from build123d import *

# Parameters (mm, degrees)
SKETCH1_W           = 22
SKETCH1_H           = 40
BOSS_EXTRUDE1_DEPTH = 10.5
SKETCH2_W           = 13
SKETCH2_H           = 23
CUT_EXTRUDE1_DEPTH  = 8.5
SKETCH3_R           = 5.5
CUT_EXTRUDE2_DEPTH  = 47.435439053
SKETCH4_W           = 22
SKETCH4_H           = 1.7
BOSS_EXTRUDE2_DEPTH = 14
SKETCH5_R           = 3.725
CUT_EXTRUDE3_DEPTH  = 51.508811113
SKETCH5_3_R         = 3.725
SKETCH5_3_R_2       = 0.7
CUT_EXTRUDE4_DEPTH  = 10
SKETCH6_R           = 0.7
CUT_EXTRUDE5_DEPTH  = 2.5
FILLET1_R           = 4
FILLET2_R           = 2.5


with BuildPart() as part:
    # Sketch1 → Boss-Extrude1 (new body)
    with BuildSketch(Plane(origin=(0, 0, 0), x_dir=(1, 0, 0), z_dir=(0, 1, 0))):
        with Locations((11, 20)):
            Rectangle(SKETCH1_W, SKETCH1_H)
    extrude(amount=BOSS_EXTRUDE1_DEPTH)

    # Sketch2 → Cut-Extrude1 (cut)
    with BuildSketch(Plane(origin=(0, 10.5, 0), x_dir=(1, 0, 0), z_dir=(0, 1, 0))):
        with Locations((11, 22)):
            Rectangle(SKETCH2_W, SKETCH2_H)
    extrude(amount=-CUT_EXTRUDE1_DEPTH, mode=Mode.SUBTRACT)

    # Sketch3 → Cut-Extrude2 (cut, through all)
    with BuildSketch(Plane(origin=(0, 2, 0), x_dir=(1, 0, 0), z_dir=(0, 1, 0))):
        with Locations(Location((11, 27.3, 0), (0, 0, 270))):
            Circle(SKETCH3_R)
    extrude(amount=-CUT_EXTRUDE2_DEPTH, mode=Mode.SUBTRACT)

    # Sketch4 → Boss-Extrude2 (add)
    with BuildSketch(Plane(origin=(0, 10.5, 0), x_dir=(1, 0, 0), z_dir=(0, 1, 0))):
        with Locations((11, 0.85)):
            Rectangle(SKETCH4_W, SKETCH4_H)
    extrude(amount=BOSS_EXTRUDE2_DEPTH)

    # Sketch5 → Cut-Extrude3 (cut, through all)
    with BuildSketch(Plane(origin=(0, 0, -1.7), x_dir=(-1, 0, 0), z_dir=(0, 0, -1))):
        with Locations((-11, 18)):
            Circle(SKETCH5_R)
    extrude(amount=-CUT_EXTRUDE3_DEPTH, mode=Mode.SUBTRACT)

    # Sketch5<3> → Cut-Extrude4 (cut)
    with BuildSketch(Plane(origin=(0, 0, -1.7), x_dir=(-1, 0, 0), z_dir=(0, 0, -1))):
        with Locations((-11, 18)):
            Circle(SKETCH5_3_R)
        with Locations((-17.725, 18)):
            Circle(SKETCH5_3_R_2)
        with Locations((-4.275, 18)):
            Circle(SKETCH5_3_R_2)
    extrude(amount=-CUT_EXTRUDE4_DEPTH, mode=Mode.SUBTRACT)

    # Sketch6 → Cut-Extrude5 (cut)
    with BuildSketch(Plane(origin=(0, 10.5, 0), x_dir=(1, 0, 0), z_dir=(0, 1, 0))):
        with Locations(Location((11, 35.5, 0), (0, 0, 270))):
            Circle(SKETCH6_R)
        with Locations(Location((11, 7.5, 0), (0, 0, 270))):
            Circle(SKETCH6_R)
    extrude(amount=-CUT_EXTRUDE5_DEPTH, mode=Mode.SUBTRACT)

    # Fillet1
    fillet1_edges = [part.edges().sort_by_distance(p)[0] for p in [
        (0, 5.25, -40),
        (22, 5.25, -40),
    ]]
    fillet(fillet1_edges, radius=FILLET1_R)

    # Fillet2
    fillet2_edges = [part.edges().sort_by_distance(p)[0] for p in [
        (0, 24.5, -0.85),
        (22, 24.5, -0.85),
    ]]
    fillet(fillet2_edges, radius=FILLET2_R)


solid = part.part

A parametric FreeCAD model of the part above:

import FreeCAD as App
import Part
import Sketcher
from FreeCAD import Vector
Q = App.Units.Quantity


def edges_at(feature, points):
    """Names of the edges that pass closest to the given points."""
    edges = feature.Shape.Edges
    near = lambda p: min(range(len(edges)), key=lambda i: edges[i].distToShape(Part.Vertex(*p))[0])
    return sorted({f"Edge{near(p) + 1}" for p in points})

doc = App.newDocument("Part")
body = doc.addObject("PartDesign::Body", "Body")

# Sketch on XZ plane
sketch1 = doc.addObject("Sketcher::SketchObject", "Sketch")
body.addObject(sketch1)
sketch1.AttachmentSupport = (doc.XZ_Plane, [""])
sketch1.MapMode = "FlatFace"
sketch1.addGeometry(Part.LineSegment(Vector(0, -40, 0), Vector(0, 0, 0)), False)
sketch1.addGeometry(Part.LineSegment(Vector(0, 0, 0), Vector(22, 0, 0)), False)
sketch1.addGeometry(Part.LineSegment(Vector(22, 0, 0), Vector(22, -40, 0)), False)
sketch1.addGeometry(Part.LineSegment(Vector(22, -40, 0), Vector(0, -40, 0)), False)
sketch1.addConstraint(Sketcher.Constraint("Coincident", 0, 2, 1, 1))
sketch1.addConstraint(Sketcher.Constraint("Coincident", 1, 2, 2, 1))
sketch1.addConstraint(Sketcher.Constraint("Coincident", 2, 2, 3, 1))
sketch1.addConstraint(Sketcher.Constraint("Coincident", 3, 2, 0, 1))
sketch1.addConstraint(Sketcher.Constraint("Vertical", 0))
sketch1.addConstraint(Sketcher.Constraint("Horizontal", 1))
sketch1.addConstraint(Sketcher.Constraint("Vertical", 2))
sketch1.addConstraint(Sketcher.Constraint("Horizontal", 3))
sketch1.addConstraint(Sketcher.Constraint("Coincident", 0, 2, -1, 1))
sketch1.addConstraint(Sketcher.Constraint("DistanceX", 1, 1, 1, 2, Q("22 mm")))
sketch1.addConstraint(Sketcher.Constraint("DistanceY", 0, 1, 0, 2, Q("40 mm")))
pad1 = doc.addObject("PartDesign::Pad", "Pad")
body.addObject(pad1)
pad1.Profile = sketch1
pad1.Length = 10.5
pad1.Reversed = True

# Sketch on XZ plane
sketch2 = doc.addObject("Sketcher::SketchObject", "Sketch001")
body.addObject(sketch2)
sketch2.AttachmentSupport = (doc.XZ_Plane, [""])
sketch2.MapMode = "FlatFace"
sketch2.AttachmentOffset = App.Placement(Vector(0, 0, -10.5), App.Rotation())
sketch2.addGeometry(Part.LineSegment(Vector(4, -34, 0), Vector(4, -10, 0)), False)
sketch2.addGeometry(Part.LineSegment(Vector(4, -10, 0), Vector(18, -10, 0)), False)
sketch2.addGeometry(Part.LineSegment(Vector(18, -10, 0), Vector(18, -34, 0)), False)
sketch2.addGeometry(Part.LineSegment(Vector(18, -34, 0), Vector(4, -34, 0)), False)
sketch2.addConstraint(Sketcher.Constraint("Coincident", 0, 2, 1, 1))
sketch2.addConstraint(Sketcher.Constraint("Coincident", 1, 2, 2, 1))
sketch2.addConstraint(Sketcher.Constraint("Coincident", 2, 2, 3, 1))
sketch2.addConstraint(Sketcher.Constraint("Coincident", 3, 2, 0, 1))
sketch2.addConstraint(Sketcher.Constraint("Vertical", 0))
sketch2.addConstraint(Sketcher.Constraint("Horizontal", 1))
sketch2.addConstraint(Sketcher.Constraint("Vertical", 2))
sketch2.addConstraint(Sketcher.Constraint("Horizontal", 3))
sketch2.addConstraint(Sketcher.Constraint("DistanceX", 1, 1, 1, 2, Q("13 mm")))
sketch2.addConstraint(Sketcher.Constraint("DistanceY", 0, 1, 0, 2, Q("23 mm")))
sketch2.addConstraint(Sketcher.Constraint("DistanceX", -1, 1, 0, 2, Q("4.5 mm")))
sketch2.addConstraint(Sketcher.Constraint("DistanceY", 0, 2, -1, 1, Q("10.5 mm")))
pocket1 = doc.addObject("PartDesign::Pocket", "Pocket")
body.addObject(pocket1)
pocket1.Profile = sketch2
pocket1.Length = 8.5
pocket1.Reversed = True

# Sketch on XZ plane
sketch3 = doc.addObject("Sketcher::SketchObject", "Sketch002")
body.addObject(sketch3)
sketch3.AttachmentSupport = (doc.XZ_Plane, [""])
sketch3.MapMode = "FlatFace"
sketch3.AttachmentOffset = App.Placement(Vector(0, 0, -2), App.Rotation())
sketch3.addGeometry(Part.Circle(Vector(11, -27, 0), Vector(0, 0, 1), 6), False)
sketch3.addConstraint(Sketcher.Constraint("Diameter", 0, Q("11 mm")))
sketch3.addConstraint(Sketcher.Constraint("DistanceX", -1, 1, 0, 3, Q("11 mm")))
sketch3.addConstraint(Sketcher.Constraint("DistanceY", 0, 3, -1, 1, Q("27.3 mm")))
pocket2 = doc.addObject("PartDesign::Pocket", "Pocket001")
body.addObject(pocket2)
pocket2.Profile = sketch3
pocket2.Type = "ThroughAll"
pocket2.Reversed = True

# Sketch on XZ plane
sketch4 = doc.addObject("Sketcher::SketchObject", "Sketch003")
body.addObject(sketch4)
sketch4.AttachmentSupport = (doc.XZ_Plane, [""])
sketch4.MapMode = "FlatFace"
sketch4.AttachmentOffset = App.Placement(Vector(0, 0, -10.5), App.Rotation())
sketch4.addGeometry(Part.LineSegment(Vector(0, -1.7, 0), Vector(0, 0, 0)), False)
sketch4.addGeometry(Part.LineSegment(Vector(0, 0, 0), Vector(22, 0, 0)), False)
sketch4.addGeometry(Part.LineSegment(Vector(22, 0, 0), Vector(22, -1.7, 0)), False)
sketch4.addGeometry(Part.LineSegment(Vector(22, -1.7, 0), Vector(0, -1.7, 0)), False)
sketch4.addConstraint(Sketcher.Constraint("Coincident", 0, 2, 1, 1))
sketch4.addConstraint(Sketcher.Constraint("Coincident", 1, 2, 2, 1))
sketch4.addConstraint(Sketcher.Constraint("Coincident", 2, 2, 3, 1))
sketch4.addConstraint(Sketcher.Constraint("Coincident", 3, 2, 0, 1))
sketch4.addConstraint(Sketcher.Constraint("Vertical", 0))
sketch4.addConstraint(Sketcher.Constraint("Horizontal", 1))
sketch4.addConstraint(Sketcher.Constraint("Vertical", 2))
sketch4.addConstraint(Sketcher.Constraint("Horizontal", 3))
sketch4.addConstraint(Sketcher.Constraint("Coincident", 0, 2, -1, 1))
sketch4.addConstraint(Sketcher.Constraint("DistanceX", 1, 1, 1, 2, Q("22 mm")))
sketch4.addConstraint(Sketcher.Constraint("DistanceY", 0, 1, 0, 2, Q("1.7 mm")))
pad2 = doc.addObject("PartDesign::Pad", "Pad001")
body.addObject(pad2)
pad2.Profile = sketch4
pad2.Length = 14
pad2.Reversed = True

# Sketch on XY plane
sketch5 = doc.addObject("Sketcher::SketchObject", "Sketch004")
body.addObject(sketch5)
sketch5.AttachmentSupport = (doc.XY_Plane, [""])
sketch5.MapMode = "FlatFace"
sketch5.AttachmentOffset = App.Placement(Vector(0, 0, -1.7), App.Rotation())
sketch5.addGeometry(Part.Circle(Vector(11, 18, 0), Vector(0, 0, 1), 3.7), False)
sketch5.addConstraint(Sketcher.Constraint("Diameter", 0, Q("7.45 mm")))
sketch5.addConstraint(Sketcher.Constraint("DistanceX", -1, 1, 0, 3, Q("11 mm")))
sketch5.addConstraint(Sketcher.Constraint("DistanceY", -1, 1, 0, 3, Q("18 mm")))
pocket3 = doc.addObject("PartDesign::Pocket", "Pocket002")
body.addObject(pocket3)
pocket3.Profile = sketch5
pocket3.Type = "ThroughAll"
pocket3.Reversed = True

# Sketch on XY plane
sketch6 = doc.addObject("Sketcher::SketchObject", "Sketch005")
body.addObject(sketch6)
sketch6.AttachmentSupport = (doc.XY_Plane, [""])
sketch6.MapMode = "FlatFace"
sketch6.AttachmentOffset = App.Placement(Vector(0, 0, -1.7), App.Rotation())
sketch6.addGeometry(Part.Circle(Vector(11, 18, 0), Vector(0, 0, 1), 3.7), False)
sketch6.addGeometry(Part.Circle(Vector(17.7, 18, 0), Vector(0, 0, 1), 0.7), False)
sketch6.addGeometry(Part.Circle(Vector(4.3, 18, 0), Vector(0, 0, 1), 0.7), False)
sketch6.addConstraint(Sketcher.Constraint("Equal", 1, 2))
sketch6.addConstraint(Sketcher.Constraint("Horizontal", 0, 3, 1, 3))
sketch6.addConstraint(Sketcher.Constraint("Horizontal", 1, 3, 2, 3))
sketch6.addConstraint(Sketcher.Constraint("Diameter", 1, Q("1.4 mm")))
sketch6.addConstraint(Sketcher.Constraint("Diameter", 0, Q("7.45 mm")))
sketch6.addConstraint(Sketcher.Constraint("DistanceX", -1, 1, 0, 3, Q("11 mm")))
sketch6.addConstraint(Sketcher.Constraint("DistanceY", -1, 1, 0, 3, Q("18 mm")))
sketch6.addConstraint(Sketcher.Constraint("DistanceX", 2, 3, 1, 3, Q("13.45 mm")))
sketch6.addConstraint(Sketcher.Constraint("DistanceX", -1, 1, 1, 3, Q("17.725 mm")))
pocket4 = doc.addObject("PartDesign::Pocket", "Pocket003")
body.addObject(pocket4)
pocket4.Profile = sketch6
pocket4.Length = 10
pocket4.Reversed = True

# Sketch on XZ plane
sketch7 = doc.addObject("Sketcher::SketchObject", "Sketch006")
body.addObject(sketch7)
sketch7.AttachmentSupport = (doc.XZ_Plane, [""])
sketch7.MapMode = "FlatFace"
sketch7.AttachmentOffset = App.Placement(Vector(0, 0, -10.5), App.Rotation())
sketch7.addGeometry(Part.Circle(Vector(11, -35.5, 0), Vector(0, 0, 1), 0.7), False)
sketch7.addGeometry(Part.Circle(Vector(11, -7.5, 0), Vector(0, 0, 1), 0.7), False)
sketch7.addConstraint(Sketcher.Constraint("Equal", 0, 1))
sketch7.addConstraint(Sketcher.Constraint("Vertical", 0, 3, 1, 3))
sketch7.addConstraint(Sketcher.Constraint("Diameter", 0, Q("1.4 mm")))
sketch7.addConstraint(Sketcher.Constraint("DistanceX", -1, 1, 0, 3, Q("11 mm")))
sketch7.addConstraint(Sketcher.Constraint("DistanceY", 0, 3, 1, 3, Q("28 mm")))
sketch7.addConstraint(Sketcher.Constraint("DistanceY", 0, 3, -1, 1, Q("35.5 mm")))
pocket5 = doc.addObject("PartDesign::Pocket", "Pocket004")
body.addObject(pocket5)
pocket5.Profile = sketch7
pocket5.Length = 2.5
pocket5.Reversed = True
doc.recompute()

fillet = doc.addObject("PartDesign::Fillet", "Fillet")
body.addObject(fillet)
fillet.Base = (pocket5, edges_at(pocket5, [(0, 5.25, -40), (22, 5.25, -40)]))
fillet.Radius = 4
doc.recompute()

fillet2 = doc.addObject("PartDesign::Fillet", "Fillet001")
body.addObject(fillet2)
fillet2.Base = (fillet, edges_at(fillet, [(0, 24.5, -0.85), (22, 24.5, -0.85)]))
fillet2.Radius = 2.5

doc.recompute()
